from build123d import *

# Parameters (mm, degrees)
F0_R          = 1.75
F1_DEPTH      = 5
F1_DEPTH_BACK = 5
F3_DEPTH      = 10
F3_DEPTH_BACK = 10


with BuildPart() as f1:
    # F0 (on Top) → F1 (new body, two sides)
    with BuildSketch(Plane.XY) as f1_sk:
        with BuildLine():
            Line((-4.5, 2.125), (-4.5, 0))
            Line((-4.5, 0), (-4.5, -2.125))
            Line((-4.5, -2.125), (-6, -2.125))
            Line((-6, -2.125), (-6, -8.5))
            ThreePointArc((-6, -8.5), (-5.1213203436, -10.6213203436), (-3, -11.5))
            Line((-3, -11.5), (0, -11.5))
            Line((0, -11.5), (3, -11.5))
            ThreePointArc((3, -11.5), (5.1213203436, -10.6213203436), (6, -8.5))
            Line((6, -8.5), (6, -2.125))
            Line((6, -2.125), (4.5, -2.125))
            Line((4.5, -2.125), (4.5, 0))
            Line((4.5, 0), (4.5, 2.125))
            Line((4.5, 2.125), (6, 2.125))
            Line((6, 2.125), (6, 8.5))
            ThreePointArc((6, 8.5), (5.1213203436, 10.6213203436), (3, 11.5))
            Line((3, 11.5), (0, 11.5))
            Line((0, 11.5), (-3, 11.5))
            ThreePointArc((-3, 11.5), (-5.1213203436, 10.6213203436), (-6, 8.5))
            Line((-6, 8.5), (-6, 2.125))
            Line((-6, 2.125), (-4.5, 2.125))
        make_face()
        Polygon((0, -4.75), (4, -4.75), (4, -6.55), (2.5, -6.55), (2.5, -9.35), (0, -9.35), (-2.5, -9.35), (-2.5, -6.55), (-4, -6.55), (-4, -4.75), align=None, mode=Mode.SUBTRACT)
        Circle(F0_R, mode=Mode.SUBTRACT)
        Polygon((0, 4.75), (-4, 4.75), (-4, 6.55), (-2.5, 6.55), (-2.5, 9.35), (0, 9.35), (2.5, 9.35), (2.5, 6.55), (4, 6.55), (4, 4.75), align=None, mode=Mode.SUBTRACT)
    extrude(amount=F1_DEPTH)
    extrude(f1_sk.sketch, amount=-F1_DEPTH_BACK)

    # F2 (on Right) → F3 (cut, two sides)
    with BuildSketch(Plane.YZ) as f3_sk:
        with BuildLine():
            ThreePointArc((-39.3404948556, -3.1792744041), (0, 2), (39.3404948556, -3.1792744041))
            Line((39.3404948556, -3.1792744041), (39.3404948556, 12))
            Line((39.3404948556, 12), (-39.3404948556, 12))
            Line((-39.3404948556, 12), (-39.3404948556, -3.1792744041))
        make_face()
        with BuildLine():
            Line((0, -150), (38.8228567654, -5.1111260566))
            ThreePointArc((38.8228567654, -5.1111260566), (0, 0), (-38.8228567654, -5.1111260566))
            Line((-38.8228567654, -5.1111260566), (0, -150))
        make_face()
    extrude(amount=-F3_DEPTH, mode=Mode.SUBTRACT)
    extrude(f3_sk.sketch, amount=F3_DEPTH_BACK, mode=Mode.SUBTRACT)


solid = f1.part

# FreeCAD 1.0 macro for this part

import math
import FreeCAD as App
import Part
import Sketcher
Q = App.Units.Quantity

doc = App.newDocument("Part")
params = doc.addObject("Spreadsheet::Sheet", "Params")
for row, (alias, value) in enumerate([
    ("sketch1_radius", "3 mm"),
    ("sketch1_diameter", "3.5 mm"),
    ("sketch1_width", "6 mm"),
    ("sketch1_width2", "8 mm"),
    ("sketch1_width3", "5 mm"),
    ("pad1_length", "5 mm"),
    ("pad1_length2", "5 mm"),
    ("sketch2_radius", "152 mm"),
    ("sketch2_radius2", "150 mm"),
], start=1):
    params.set(f"A{row}", alias)
    params.set(f"B{row}", "=" + value)
    params.setAlias(f"B{row}", alias)

body = doc.addObject("PartDesign::Body", "Body")

sketch1 = body.newObject("Sketcher::SketchObject", "Sketch")
sketch1.AttachmentSupport = (doc.getObject("XY_Plane"), [""])
sketch1.MapMode = "FlatFace"
sketch1.addGeometry([
    Part.LineSegment(App.Vector(-4.5, 2.1, 0), App.Vector(-4.5, -2.1, 0)),
    Part.LineSegment(App.Vector(-4.5, -2.1, 0), App.Vector(-6, -2.1, 0)),
    Part.LineSegment(App.Vector(-6, -2.1, 0), App.Vector(-6, -8.5, 0)),
    Part.ArcOfCircle(Part.Circle(App.Vector(-3, -8.5, 0), App.Vector(0, 0, 1), 3), math.radians(180), math.radians(270)),
    Part.LineSegment(App.Vector(-3, -11.5, 0), App.Vector(3, -11.5, 0)),
    Part.ArcOfCircle(Part.Circle(App.Vector(3, -8.5, 0), App.Vector(0, 0, 1), 3), math.radians(-90), math.radians(0)),
    Part.LineSegment(App.Vector(6, -8.5, 0), App.Vector(6, -2.1, 0)),
    Part.LineSegment(App.Vector(6, -2.1, 0), App.Vector(4.5, -2.1, 0)),
    Part.LineSegment(App.Vector(4.5, -2.1, 0), App.Vector(4.5, 2.1, 0)),
    Part.LineSegment(App.Vector(4.5, 2.1, 0), App.Vector(6, 2.1, 0)),
    Part.LineSegment(App.Vector(6, 2.1, 0), App.Vector(6, 8.5, 0)),
    Part.ArcOfCircle(Part.Circle(App.Vector(3, 8.5, 0), App.Vector(0, 0, 1), 3), math.radians(0), math.radians(90)),
    Part.LineSegment(App.Vector(3, 11.5, 0), App.Vector(-3, 11.5, 0)),
    Part.ArcOfCircle(Part.Circle(App.Vector(-3, 8.5, 0), App.Vector(0, 0, 1), 3), math.radians(90), math.radians(180)),
    Part.LineSegment(App.Vector(-6, 8.5, 0), App.Vector(-6, 2.1, 0)),
    Part.LineSegment(App.Vector(-6, 2.1, 0), App.Vector(-4.5, 2.1, 0)),
    Part.LineSegment(App.Vector(-4, -4.8, 0), App.Vector(4, -4.8, 0)),
    Part.LineSegment(App.Vector(4, -4.8, 0), App.Vector(4, -6.5, 0)),
    Part.LineSegment(App.Vector(4, -6.5, 0), App.Vector(2.5, -6.5, 0)),
    Part.LineSegment(App.Vector(2.5, -6.5, 0), App.Vector(2.5, -9.3, 0)),
    Part.LineSegment(App.Vector(2.5, -9.3, 0), App.Vector(-2.5, -9.3, 0)),
    Part.LineSegment(App.Vector(-2.5, -9.3, 0), App.Vector(-2.5, -6.5, 0)),
    Part.LineSegment(App.Vector(-2.5, -6.5, 0), App.Vector(-4, -6.5, 0)),
    Part.LineSegment(App.Vector(-4, -6.5, 0), App.Vector(-4, -4.8, 0)),
    Part.Circle(App.Vector(0, 0, 0), App.Vector(0, 0, 1), 1.8),
    Part.LineSegment(App.Vector(4, 4.8, 0), App.Vector(-4, 4.8, 0)),
    Part.LineSegment(App.Vector(-4, 4.8, 0), App.Vector(-4, 6.5, 0)),
    Part.LineSegment(App.Vector(-4, 6.5, 0), App.Vector(-2.5, 6.5, 0)),
    Part.LineSegment(App.Vector(-2.5, 6.5, 0), App.Vector(-2.5, 9.3, 0)),
    Part.LineSegment(App.Vector(-2.5, 9.3, 0), App.Vector(2.5, 9.3, 0)),
    Part.LineSegment(App.Vector(2.5, 9.3, 0), App.Vector(2.5, 6.5, 0)),
    Part.LineSegment(App.Vector(2.5, 6.5, 0), App.Vector(4, 6.5, 0)),
    Part.LineSegment(App.Vector(4, 6.5, 0), App.Vector(4, 4.8, 0)),
], False)
sketch1.addConstraint([
    Sketcher.Constraint("Coincident", 0, 2, 1, 1),
    Sketcher.Constraint("Coincident", 1, 2, 2, 1),
    Sketcher.Constraint("Tangent", 2, 2, 3, 1),
    Sketcher.Constraint("Tangent", 3, 2, 4, 1),
    Sketcher.Constraint("Tangent", 4, 2, 5, 1),
    Sketcher.Constraint("Tangent", 5, 2, 6, 1),
    Sketcher.Constraint("Coincident", 6, 2, 7, 1),
    Sketcher.Constraint("Coincident", 7, 2, 8, 1),
    Sketcher.Constraint("Coincident", 8, 2, 9, 1),
    Sketcher.Constraint("Coincident", 9, 2, 10, 1),
    Sketcher.Constraint("Tangent", 10, 2, 11, 1),
    Sketcher.Constraint("Tangent", 11, 2, 12, 1),
    Sketcher.Constraint("Tangent", 12, 2, 13, 1),
    Sketcher.Constraint("Tangent", 13, 2, 14, 1),
    Sketcher.Constraint("Coincident", 14, 2, 15, 1),
    Sketcher.Constraint("Coincident", 15, 2, 0, 1),
    Sketcher.Constraint("Coincident", 16, 2, 17, 1),
    Sketcher.Constraint("Coincident", 17, 2, 18, 1),
    Sketcher.Constraint("Coincident", 18, 2, 19, 1),
    Sketcher.Constraint("Coincident", 19, 2, 20, 1),
    Sketcher.Constraint("Coincident", 20, 2, 21, 1),
    Sketcher.Constraint("Coincident", 21, 2, 22, 1),
    Sketcher.Constraint("Coincident", 22, 2, 23, 1),
    Sketcher.Constraint("Coincident", 23, 2, 16, 1),
    Sketcher.Constraint("Coincident", 25, 2, 26, 1),
    Sketcher.Constraint("Coincident", 26, 2, 27, 1),
    Sketcher.Constraint("Coincident", 27, 2, 28, 1),
    Sketcher.Constraint("Coincident", 28, 2, 29, 1),
    Sketcher.Constraint("Coincident", 29, 2, 30, 1),
    Sketcher.Constraint("Coincident", 30, 2, 31, 1),
    Sketcher.Constraint("Coincident", 31, 2, 32, 1),
    Sketcher.Constraint("Coincident", 32, 2, 25, 1),
    Sketcher.Constraint("Vertical", 0),
    Sketcher.Constraint("Horizontal", 1),
    Sketcher.Constraint("Vertical", 2),
    Sketcher.Constraint("Horizontal", 4),
    Sketcher.Constraint("Vertical", 6),
    Sketcher.Constraint("Horizontal", 7),
    Sketcher.Constraint("Vertical", 8),
    Sketcher.Constraint("Horizontal", 9),
    Sketcher.Constraint("Vertical", 10),
    Sketcher.Constraint("Horizontal", 12),
    Sketcher.Constraint("Vertical", 14),
    Sketcher.Constraint("Horizontal", 15),
    Sketcher.Constraint("Horizontal", 16),
    Sketcher.Constraint("Vertical", 17),
    Sketcher.Constraint("Horizontal", 18),
    Sketcher.Constraint("Vertical", 19),
    Sketcher.Constraint("Horizontal", 20),
    Sketcher.Constraint("Vertical", 21),
    Sketcher.Constraint("Horizontal", 22),
    Sketcher.Constraint("Vertical", 23),
    Sketcher.Constraint("Horizontal", 25),
    Sketcher.Constraint("Vertical", 26),
    Sketcher.Constraint("Horizontal", 27),
    Sketcher.Constraint("Vertical", 28),
    Sketcher.Constraint("Horizontal", 29),
    Sketcher.Constraint("Vertical", 30),
    Sketcher.Constraint("Horizontal", 31),
    Sketcher.Constraint("Vertical", 32),
    Sketcher.Constraint("Coincident", 24, 3, -1, 1),
    Sketcher.Constraint("Equal", 3, 5),
    Sketcher.Constraint("Equal", 5, 11),
    Sketcher.Constraint("Equal", 11, 13),
    Sketcher.Constraint("Symmetric", 3, 3, 11, 3, -1, 1),
    Sketcher.Constraint("Symmetric", 0, 2, 8, 2, -1, 1),
    Sketcher.Constraint("Symmetric", 6, 2, 14, 2, -1, 1),
    Sketcher.Constraint("Symmetric", 16, 2, 25, 2, -1, 1),
    Sketcher.Constraint("Symmetric", 18, 2, 27, 2, -1, 1),
    Sketcher.Constraint("Symmetric", 20, 2, 29, 2, -1, 1),
    Sketcher.Constraint("Symmetric", 22, 2, 31, 2, -1, 1),
    Sketcher.Constraint("Symmetric", 1, 2, 6, 2, -2),
    Sketcher.Constraint("Symmetric", 18, 2, 21, 2, -2),
    Sketcher.Constraint("Vertical", 23, 2, 25, 2),
    Sketcher.Constraint("Equal", 15, 18),
    Sketcher.Constraint("Radius", 3, Q("3 mm")),
    Sketcher.Constraint("Diameter", 24, Q("3.5 mm")),
    Sketcher.Constraint("DistanceX", 4, 1, 4, 2, Q("6 mm")),
    Sketcher.Constraint("DistanceX", 16, 1, 16, 2, Q("8 mm")),
    Sketcher.Constraint("DistanceX", 20, 2, 20, 1, Q("5 mm")),
    Sketcher.Constraint("DistanceY", 17, 2, 17, 1, Q("1.8 mm")),
    Sketcher.Constraint("DistanceY", 19, 2, 19, 1, Q("2.8 mm")),
    Sketcher.Constraint("DistanceY", 5, 3, 11, 3, Q("17 mm")),
    Sketcher.Constraint("DistanceY", 0, 2, 0, 1, Q("4.25 mm")),
    Sketcher.Constraint("DistanceY", 16, 2, -1, 1, Q("4.75 mm")),
])
sketch1.setExpression("Constraints[75]", "Params.sketch1_radius")
sketch1.setExpression("Constraints[76]", "Params.sketch1_diameter")
sketch1.setExpression("Constraints[77]", "Params.sketch1_width")
sketch1.setExpression("Constraints[78]", "Params.sketch1_width2")
sketch1.setExpression("Constraints[79]", "Params.sketch1_width3")
pad1 = body.newObject("PartDesign::Pad", "Pad")
pad1.Profile = sketch1
pad1.Type = "TwoLengths"
pad1.setExpression("Length", "Params.pad1_length")
pad1.setExpression("Length2", "Params.pad1_length2")

sketch2 = body.newObject("Sketcher::SketchObject", "Sketch001")
sketch2.AttachmentSupport = (doc.getObject("YZ_Plane"), [""])
sketch2.MapMode = "FlatFace"
sketch2.addGeometry([
    Part.ArcOfCircle(Part.Circle(App.Vector(0, -150, 0), App.Vector(0, 0, 1), 152), math.radians(75), math.radians(105)),
    Part.LineSegment(App.Vector(39, -3, 0), App.Vector(39, 12, 0)),
    Part.LineSegment(App.Vector(39, 12, 0), App.Vector(-39, 12, 0)),
    Part.LineSegment(App.Vector(-39, 12, 0), App.Vector(-39, -3, 0)),
    Part.LineSegment(App.Vector(0, -150, 0), App.Vector(39, -5, 0)),
    Part.ArcOfCircle(Part.Circle(App.Vector(0, -150, 0), App.Vector(0, 0, 1), 150), math.radians(75), math.radians(105)),
    Part.LineSegment(App.Vector(-39, -5, 0), App.Vector(0, -150, 0)),
], False)
sketch2.addConstraint([
    Sketcher.Constraint("Coincident", 0, 1, 1, 1),
    Sketcher.Constraint("Coincident", 1, 2, 2, 1),
    Sketcher.Constraint("Coincident", 2, 2, 3, 1),
    Sketcher.Constraint("Coincident", 3, 2, 0, 2),
    Sketcher.Constraint("Coincident", 4, 2, 5, 1),
    Sketcher.Constraint("Coincident", 5, 2, 6, 1),
    Sketcher.Constraint("Coincident", 6, 2, 4, 1),
    Sketcher.Constraint("Vertical", 1),
    Sketcher.Constraint("Horizontal", 2),
    Sketcher.Constraint("Vertical", 3),
    Sketcher.Constraint("Coincident", 5, 3, 0, 3),
    Sketcher.Constraint("Coincident", 6, 2, 0, 3),
    Sketcher.Constraint("Symmetric", 0, 1, 3, 2, -2),
    Sketcher.Constraint("Horizontal", 4, 2, 5, 2),
    Sketcher.Constraint("Radius", 0, Q("152 mm")),
    Sketcher.Constraint("Radius", 5, Q("150 mm")),
    Sketcher.Constraint("Angle", 4, Q("75 deg")),
    Sketcher.Constraint("DistanceY", 0, 3, -1, 1, Q("150 mm")),
    Sketcher.Constraint("DistanceY", -1, 1, 1, 2, Q("12 mm")),
    Sketcher.Constraint("DistanceX", 2, 2, 2, 1, Q("78.68099 mm")),
])
sketch2.setExpression("Constraints[14]", "Params.sketch2_radius")
sketch2.setExpression("Constraints[15]", "Params.sketch2_radius2")
pocket1 = body.newObject("PartDesign::Pocket", "Pocket")
pocket1.Profile = sketch2
pocket1.Type = "ThroughAll"
pocket1.Midplane = True

doc.recompute()
